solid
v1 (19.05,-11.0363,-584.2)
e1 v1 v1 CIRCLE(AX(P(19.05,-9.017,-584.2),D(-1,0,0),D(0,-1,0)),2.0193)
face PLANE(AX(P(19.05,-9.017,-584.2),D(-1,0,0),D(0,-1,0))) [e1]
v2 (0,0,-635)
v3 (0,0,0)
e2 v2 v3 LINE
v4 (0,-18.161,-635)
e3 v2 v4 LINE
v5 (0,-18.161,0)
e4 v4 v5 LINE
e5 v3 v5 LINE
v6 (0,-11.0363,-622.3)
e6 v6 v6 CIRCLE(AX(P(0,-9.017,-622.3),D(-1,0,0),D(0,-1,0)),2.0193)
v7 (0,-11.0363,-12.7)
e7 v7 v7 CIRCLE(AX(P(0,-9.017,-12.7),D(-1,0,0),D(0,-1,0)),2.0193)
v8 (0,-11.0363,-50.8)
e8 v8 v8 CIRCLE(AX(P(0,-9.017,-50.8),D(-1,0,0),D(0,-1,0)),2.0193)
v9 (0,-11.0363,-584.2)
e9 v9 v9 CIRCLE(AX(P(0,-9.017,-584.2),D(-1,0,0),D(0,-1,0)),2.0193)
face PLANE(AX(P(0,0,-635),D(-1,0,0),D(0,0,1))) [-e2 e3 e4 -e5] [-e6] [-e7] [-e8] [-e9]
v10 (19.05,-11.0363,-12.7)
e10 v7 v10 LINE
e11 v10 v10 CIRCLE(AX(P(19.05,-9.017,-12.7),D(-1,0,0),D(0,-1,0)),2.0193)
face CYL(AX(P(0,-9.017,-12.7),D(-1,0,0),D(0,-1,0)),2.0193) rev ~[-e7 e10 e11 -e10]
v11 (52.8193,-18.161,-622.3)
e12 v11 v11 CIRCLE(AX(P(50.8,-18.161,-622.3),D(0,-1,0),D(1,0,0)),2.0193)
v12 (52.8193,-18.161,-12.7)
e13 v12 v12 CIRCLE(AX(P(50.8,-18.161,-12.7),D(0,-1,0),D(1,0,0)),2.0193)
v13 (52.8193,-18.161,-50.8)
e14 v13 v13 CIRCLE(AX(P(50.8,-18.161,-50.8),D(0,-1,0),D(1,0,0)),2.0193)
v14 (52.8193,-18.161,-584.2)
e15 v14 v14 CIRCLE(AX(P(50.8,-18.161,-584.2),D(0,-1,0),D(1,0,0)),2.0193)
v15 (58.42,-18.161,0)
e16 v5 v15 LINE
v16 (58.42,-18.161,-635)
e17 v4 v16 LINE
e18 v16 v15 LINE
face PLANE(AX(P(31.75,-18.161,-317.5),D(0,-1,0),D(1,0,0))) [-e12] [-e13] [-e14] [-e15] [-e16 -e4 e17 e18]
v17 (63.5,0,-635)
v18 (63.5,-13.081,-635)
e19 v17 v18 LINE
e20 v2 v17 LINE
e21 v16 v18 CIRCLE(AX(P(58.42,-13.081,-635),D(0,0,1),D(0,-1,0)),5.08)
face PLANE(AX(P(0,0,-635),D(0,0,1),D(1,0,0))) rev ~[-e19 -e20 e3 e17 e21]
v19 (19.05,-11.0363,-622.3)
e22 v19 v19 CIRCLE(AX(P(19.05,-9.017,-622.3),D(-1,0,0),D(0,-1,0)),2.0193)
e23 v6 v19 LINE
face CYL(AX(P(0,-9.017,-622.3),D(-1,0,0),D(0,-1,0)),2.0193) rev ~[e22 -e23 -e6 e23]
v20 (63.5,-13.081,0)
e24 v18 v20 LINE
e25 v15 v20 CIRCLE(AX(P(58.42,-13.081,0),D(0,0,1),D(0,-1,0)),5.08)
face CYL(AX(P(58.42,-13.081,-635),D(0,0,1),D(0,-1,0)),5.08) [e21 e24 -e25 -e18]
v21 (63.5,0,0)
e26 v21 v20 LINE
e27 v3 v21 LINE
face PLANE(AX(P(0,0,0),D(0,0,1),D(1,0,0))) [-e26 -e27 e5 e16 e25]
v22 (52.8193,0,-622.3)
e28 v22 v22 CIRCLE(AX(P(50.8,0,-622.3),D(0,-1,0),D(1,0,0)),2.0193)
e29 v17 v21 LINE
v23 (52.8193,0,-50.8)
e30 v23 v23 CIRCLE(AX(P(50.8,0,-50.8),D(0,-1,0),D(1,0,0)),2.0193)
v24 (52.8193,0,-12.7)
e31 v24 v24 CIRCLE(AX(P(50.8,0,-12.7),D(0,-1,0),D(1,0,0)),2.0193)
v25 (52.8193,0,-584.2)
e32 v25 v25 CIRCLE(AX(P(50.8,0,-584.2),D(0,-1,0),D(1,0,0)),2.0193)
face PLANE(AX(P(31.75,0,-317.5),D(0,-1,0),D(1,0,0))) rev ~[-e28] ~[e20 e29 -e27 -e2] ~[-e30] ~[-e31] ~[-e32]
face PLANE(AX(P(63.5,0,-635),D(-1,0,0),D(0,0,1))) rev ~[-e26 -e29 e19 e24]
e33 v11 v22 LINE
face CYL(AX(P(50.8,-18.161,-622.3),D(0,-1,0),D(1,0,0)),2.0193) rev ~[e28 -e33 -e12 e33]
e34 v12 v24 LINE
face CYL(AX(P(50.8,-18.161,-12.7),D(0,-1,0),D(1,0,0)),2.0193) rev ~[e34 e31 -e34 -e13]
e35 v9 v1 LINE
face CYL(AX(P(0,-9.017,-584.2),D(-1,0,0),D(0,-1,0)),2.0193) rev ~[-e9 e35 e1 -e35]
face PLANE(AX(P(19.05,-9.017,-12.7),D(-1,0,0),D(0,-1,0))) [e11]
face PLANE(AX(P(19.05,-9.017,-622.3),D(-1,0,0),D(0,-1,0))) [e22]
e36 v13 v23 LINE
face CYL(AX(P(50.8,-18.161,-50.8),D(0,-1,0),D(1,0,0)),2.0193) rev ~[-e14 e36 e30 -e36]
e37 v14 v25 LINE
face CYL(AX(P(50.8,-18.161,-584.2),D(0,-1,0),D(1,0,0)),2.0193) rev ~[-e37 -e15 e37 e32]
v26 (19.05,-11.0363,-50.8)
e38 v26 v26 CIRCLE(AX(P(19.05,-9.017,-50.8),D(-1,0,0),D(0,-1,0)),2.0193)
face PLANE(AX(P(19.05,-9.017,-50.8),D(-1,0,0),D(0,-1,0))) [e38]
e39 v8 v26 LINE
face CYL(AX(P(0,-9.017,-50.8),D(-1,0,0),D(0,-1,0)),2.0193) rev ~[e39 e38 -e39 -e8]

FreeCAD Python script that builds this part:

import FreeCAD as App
import Part
import Sketcher
Q = App.Units.Quantity


def edges_at(feature, points):
    """Names of the edges that pass closest to the given points."""
    edges = feature.Shape.Edges
    near = lambda p: min(range(len(edges)), key=lambda i: edges[i].distToShape(Part.Vertex(*p))[0])
    return sorted({f"Edge{near(p) + 1}" for p in points})


def add_polygon(sketch, points):
    """Adds a closed chain of lines whose ends are joined by coincident constraints."""
    first, n = sketch.GeometryCount, len(points)
    for a, b in zip(points, points[1:] + points[:1]):
        sketch.addGeometry(Part.LineSegment(App.Vector(*a, 0), App.Vector(*b, 0)), False)
    for i in range(n):
        sketch.addConstraint(Sketcher.Constraint("Coincident", first + i, 2, first + (i + 1) % n, 1))

doc = App.newDocument("Part")
body = doc.addObject("PartDesign::Body", "Body")

# Sketch on XZ plane
sketch1 = doc.addObject("Sketcher::SketchObject", "Sketch")
body.addObject(sketch1)
sketch1.AttachmentSupport = (doc.XZ_Plane, [""])
sketch1.MapMode = "FlatFace"
add_polygon(sketch1, [(0, 0), (0, -635), (64, -635), (64, 0)])  # lines 0-3
sketch1.addConstraint([
    Sketcher.Constraint("Vertical", 0),
    Sketcher.Constraint("Horizontal", 1),
    Sketcher.Constraint("Vertical", 2),
    Sketcher.Constraint("Horizontal", 3),
    Sketcher.Constraint("Coincident", 3, 2, -1, 1),
    Sketcher.Constraint("DistanceY", 0, 2, 0, 1, Q("25 in")),
    Sketcher.Constraint("DistanceX", 1, 1, 1, 2, Q("2.5 in")),
])
pad1 = doc.addObject("PartDesign::Pad", "Pad")
body.addObject(pad1)
pad1.Profile = sketch1
pad1.Length = Q("0.715 in")

# Sketch on XZ plane
sketch2 = doc.addObject("Sketcher::SketchObject", "Sketch001")
body.addObject(sketch2)
sketch2.AttachmentSupport = (doc.XZ_Plane, [""])
sketch2.MapMode = "FlatFace"
sketch2.AttachmentOffset = App.Placement(App.Vector(0, 0, 0.715 * 25.4), App.Rotation())
sketch2.addGeometry([
    Part.Circle(App.Vector(50.8, -12.7, 0), App.Vector(0, 0, 1), 2),
    Part.Circle(App.Vector(50.8, -50.8, 0), App.Vector(0, 0, 1), 2),
    Part.Circle(App.Vector(50.8, -622.3, 0), App.Vector(0, 0, 1), 2),
    Part.Circle(App.Vector(50.8, -584.2, 0), App.Vector(0, 0, 1), 2),
], False)
sketch2.addConstraint([
    Sketcher.Constraint("Equal", 0, 1),
    Sketcher.Constraint("Equal", 1, 2),
    Sketcher.Constraint("Equal", 2, 3),
    Sketcher.Constraint("Vertical", 0, 3, 1, 3),
    Sketcher.Constraint("Vertical", 1, 3, 2, 3),
    Sketcher.Constraint("Vertical", 2, 3, 3, 3),
    Sketcher.Constraint("Diameter", 0, Q("0.159 in")),
    Sketcher.Constraint("DistanceX", -1, 1, 0, 3, Q("2 in")),
    Sketcher.Constraint("DistanceY", 1, 3, -1, 1, Q("2 in")),
    Sketcher.Constraint("DistanceY", 3, 3, -1, 1, Q("23 in")),
    Sketcher.Constraint("DistanceY", 2, 3, 0, 3, Q("24 in")),
    Sketcher.Constraint("DistanceY", 0, 3, -1, 1, Q("0.5 in")),
])
pocket1 = doc.addObject("PartDesign::Pocket", "Pocket")
body.addObject(pocket1)
pocket1.Profile = sketch2
pocket1.Type = "ThroughAll"

# Sketch on YZ plane
sketch3 = doc.addObject("Sketcher::SketchObject", "Sketch002")
body.addObject(sketch3)
sketch3.AttachmentSupport = (doc.YZ_Plane, [""])
sketch3.MapMode = "FlatFace"
sketch3.addGeometry([
    Part.Circle(App.Vector(-9, -12.7, 0), App.Vector(0, 0, 1), 2),
    Part.Circle(App.Vector(-9, -50.8, 0), App.Vector(0, 0, 1), 2),
    Part.Circle(App.Vector(-9, -622.3, 0), App.Vector(0, 0, 1), 2),
    Part.Circle(App.Vector(-9, -584.2, 0), App.Vector(0, 0, 1), 2),
], False)
sketch3.addConstraint([
    Sketcher.Constraint("Equal", 0, 1),
    Sketcher.Constraint("Equal", 1, 2),
    Sketcher.Constraint("Equal", 2, 3),
    Sketcher.Constraint("Vertical", 0, 3, 1, 3),
    Sketcher.Constraint("Vertical", 1, 3, 2, 3),
    Sketcher.Constraint("Vertical", 2, 3, 3, 3),
    Sketcher.Constraint("Diameter", 0, Q("0.159 in")),
    Sketcher.Constraint("DistanceY", 1, 3, -1, 1, Q("2 in")),
    Sketcher.Constraint("DistanceY", 3, 3, -1, 1, Q("23 in")),
    Sketcher.Constraint("DistanceY", 2, 3, 0, 3, Q("24 in")),
    Sketcher.Constraint("DistanceY", 0, 3, -1, 1, Q("0.5 in")),
    Sketcher.Constraint("DistanceX", 0, 3, -1, 1, Q("0.355 in")),
])
pocket2 = doc.addObject("PartDesign::Pocket", "Pocket001")
body.addObject(pocket2)
pocket2.Profile = sketch3
pocket2.Length = Q("0.75 in")
pocket2.Reversed = True
doc.recompute()

fillet = doc.addObject("PartDesign::Fillet", "Fillet")
body.addObject(fillet)
fillet.Base = (pocket2, edges_at(pocket2, [(63.5, -18.161, -317.5)]))
fillet.Radius = Q("0.2 in")

doc.recompute()
